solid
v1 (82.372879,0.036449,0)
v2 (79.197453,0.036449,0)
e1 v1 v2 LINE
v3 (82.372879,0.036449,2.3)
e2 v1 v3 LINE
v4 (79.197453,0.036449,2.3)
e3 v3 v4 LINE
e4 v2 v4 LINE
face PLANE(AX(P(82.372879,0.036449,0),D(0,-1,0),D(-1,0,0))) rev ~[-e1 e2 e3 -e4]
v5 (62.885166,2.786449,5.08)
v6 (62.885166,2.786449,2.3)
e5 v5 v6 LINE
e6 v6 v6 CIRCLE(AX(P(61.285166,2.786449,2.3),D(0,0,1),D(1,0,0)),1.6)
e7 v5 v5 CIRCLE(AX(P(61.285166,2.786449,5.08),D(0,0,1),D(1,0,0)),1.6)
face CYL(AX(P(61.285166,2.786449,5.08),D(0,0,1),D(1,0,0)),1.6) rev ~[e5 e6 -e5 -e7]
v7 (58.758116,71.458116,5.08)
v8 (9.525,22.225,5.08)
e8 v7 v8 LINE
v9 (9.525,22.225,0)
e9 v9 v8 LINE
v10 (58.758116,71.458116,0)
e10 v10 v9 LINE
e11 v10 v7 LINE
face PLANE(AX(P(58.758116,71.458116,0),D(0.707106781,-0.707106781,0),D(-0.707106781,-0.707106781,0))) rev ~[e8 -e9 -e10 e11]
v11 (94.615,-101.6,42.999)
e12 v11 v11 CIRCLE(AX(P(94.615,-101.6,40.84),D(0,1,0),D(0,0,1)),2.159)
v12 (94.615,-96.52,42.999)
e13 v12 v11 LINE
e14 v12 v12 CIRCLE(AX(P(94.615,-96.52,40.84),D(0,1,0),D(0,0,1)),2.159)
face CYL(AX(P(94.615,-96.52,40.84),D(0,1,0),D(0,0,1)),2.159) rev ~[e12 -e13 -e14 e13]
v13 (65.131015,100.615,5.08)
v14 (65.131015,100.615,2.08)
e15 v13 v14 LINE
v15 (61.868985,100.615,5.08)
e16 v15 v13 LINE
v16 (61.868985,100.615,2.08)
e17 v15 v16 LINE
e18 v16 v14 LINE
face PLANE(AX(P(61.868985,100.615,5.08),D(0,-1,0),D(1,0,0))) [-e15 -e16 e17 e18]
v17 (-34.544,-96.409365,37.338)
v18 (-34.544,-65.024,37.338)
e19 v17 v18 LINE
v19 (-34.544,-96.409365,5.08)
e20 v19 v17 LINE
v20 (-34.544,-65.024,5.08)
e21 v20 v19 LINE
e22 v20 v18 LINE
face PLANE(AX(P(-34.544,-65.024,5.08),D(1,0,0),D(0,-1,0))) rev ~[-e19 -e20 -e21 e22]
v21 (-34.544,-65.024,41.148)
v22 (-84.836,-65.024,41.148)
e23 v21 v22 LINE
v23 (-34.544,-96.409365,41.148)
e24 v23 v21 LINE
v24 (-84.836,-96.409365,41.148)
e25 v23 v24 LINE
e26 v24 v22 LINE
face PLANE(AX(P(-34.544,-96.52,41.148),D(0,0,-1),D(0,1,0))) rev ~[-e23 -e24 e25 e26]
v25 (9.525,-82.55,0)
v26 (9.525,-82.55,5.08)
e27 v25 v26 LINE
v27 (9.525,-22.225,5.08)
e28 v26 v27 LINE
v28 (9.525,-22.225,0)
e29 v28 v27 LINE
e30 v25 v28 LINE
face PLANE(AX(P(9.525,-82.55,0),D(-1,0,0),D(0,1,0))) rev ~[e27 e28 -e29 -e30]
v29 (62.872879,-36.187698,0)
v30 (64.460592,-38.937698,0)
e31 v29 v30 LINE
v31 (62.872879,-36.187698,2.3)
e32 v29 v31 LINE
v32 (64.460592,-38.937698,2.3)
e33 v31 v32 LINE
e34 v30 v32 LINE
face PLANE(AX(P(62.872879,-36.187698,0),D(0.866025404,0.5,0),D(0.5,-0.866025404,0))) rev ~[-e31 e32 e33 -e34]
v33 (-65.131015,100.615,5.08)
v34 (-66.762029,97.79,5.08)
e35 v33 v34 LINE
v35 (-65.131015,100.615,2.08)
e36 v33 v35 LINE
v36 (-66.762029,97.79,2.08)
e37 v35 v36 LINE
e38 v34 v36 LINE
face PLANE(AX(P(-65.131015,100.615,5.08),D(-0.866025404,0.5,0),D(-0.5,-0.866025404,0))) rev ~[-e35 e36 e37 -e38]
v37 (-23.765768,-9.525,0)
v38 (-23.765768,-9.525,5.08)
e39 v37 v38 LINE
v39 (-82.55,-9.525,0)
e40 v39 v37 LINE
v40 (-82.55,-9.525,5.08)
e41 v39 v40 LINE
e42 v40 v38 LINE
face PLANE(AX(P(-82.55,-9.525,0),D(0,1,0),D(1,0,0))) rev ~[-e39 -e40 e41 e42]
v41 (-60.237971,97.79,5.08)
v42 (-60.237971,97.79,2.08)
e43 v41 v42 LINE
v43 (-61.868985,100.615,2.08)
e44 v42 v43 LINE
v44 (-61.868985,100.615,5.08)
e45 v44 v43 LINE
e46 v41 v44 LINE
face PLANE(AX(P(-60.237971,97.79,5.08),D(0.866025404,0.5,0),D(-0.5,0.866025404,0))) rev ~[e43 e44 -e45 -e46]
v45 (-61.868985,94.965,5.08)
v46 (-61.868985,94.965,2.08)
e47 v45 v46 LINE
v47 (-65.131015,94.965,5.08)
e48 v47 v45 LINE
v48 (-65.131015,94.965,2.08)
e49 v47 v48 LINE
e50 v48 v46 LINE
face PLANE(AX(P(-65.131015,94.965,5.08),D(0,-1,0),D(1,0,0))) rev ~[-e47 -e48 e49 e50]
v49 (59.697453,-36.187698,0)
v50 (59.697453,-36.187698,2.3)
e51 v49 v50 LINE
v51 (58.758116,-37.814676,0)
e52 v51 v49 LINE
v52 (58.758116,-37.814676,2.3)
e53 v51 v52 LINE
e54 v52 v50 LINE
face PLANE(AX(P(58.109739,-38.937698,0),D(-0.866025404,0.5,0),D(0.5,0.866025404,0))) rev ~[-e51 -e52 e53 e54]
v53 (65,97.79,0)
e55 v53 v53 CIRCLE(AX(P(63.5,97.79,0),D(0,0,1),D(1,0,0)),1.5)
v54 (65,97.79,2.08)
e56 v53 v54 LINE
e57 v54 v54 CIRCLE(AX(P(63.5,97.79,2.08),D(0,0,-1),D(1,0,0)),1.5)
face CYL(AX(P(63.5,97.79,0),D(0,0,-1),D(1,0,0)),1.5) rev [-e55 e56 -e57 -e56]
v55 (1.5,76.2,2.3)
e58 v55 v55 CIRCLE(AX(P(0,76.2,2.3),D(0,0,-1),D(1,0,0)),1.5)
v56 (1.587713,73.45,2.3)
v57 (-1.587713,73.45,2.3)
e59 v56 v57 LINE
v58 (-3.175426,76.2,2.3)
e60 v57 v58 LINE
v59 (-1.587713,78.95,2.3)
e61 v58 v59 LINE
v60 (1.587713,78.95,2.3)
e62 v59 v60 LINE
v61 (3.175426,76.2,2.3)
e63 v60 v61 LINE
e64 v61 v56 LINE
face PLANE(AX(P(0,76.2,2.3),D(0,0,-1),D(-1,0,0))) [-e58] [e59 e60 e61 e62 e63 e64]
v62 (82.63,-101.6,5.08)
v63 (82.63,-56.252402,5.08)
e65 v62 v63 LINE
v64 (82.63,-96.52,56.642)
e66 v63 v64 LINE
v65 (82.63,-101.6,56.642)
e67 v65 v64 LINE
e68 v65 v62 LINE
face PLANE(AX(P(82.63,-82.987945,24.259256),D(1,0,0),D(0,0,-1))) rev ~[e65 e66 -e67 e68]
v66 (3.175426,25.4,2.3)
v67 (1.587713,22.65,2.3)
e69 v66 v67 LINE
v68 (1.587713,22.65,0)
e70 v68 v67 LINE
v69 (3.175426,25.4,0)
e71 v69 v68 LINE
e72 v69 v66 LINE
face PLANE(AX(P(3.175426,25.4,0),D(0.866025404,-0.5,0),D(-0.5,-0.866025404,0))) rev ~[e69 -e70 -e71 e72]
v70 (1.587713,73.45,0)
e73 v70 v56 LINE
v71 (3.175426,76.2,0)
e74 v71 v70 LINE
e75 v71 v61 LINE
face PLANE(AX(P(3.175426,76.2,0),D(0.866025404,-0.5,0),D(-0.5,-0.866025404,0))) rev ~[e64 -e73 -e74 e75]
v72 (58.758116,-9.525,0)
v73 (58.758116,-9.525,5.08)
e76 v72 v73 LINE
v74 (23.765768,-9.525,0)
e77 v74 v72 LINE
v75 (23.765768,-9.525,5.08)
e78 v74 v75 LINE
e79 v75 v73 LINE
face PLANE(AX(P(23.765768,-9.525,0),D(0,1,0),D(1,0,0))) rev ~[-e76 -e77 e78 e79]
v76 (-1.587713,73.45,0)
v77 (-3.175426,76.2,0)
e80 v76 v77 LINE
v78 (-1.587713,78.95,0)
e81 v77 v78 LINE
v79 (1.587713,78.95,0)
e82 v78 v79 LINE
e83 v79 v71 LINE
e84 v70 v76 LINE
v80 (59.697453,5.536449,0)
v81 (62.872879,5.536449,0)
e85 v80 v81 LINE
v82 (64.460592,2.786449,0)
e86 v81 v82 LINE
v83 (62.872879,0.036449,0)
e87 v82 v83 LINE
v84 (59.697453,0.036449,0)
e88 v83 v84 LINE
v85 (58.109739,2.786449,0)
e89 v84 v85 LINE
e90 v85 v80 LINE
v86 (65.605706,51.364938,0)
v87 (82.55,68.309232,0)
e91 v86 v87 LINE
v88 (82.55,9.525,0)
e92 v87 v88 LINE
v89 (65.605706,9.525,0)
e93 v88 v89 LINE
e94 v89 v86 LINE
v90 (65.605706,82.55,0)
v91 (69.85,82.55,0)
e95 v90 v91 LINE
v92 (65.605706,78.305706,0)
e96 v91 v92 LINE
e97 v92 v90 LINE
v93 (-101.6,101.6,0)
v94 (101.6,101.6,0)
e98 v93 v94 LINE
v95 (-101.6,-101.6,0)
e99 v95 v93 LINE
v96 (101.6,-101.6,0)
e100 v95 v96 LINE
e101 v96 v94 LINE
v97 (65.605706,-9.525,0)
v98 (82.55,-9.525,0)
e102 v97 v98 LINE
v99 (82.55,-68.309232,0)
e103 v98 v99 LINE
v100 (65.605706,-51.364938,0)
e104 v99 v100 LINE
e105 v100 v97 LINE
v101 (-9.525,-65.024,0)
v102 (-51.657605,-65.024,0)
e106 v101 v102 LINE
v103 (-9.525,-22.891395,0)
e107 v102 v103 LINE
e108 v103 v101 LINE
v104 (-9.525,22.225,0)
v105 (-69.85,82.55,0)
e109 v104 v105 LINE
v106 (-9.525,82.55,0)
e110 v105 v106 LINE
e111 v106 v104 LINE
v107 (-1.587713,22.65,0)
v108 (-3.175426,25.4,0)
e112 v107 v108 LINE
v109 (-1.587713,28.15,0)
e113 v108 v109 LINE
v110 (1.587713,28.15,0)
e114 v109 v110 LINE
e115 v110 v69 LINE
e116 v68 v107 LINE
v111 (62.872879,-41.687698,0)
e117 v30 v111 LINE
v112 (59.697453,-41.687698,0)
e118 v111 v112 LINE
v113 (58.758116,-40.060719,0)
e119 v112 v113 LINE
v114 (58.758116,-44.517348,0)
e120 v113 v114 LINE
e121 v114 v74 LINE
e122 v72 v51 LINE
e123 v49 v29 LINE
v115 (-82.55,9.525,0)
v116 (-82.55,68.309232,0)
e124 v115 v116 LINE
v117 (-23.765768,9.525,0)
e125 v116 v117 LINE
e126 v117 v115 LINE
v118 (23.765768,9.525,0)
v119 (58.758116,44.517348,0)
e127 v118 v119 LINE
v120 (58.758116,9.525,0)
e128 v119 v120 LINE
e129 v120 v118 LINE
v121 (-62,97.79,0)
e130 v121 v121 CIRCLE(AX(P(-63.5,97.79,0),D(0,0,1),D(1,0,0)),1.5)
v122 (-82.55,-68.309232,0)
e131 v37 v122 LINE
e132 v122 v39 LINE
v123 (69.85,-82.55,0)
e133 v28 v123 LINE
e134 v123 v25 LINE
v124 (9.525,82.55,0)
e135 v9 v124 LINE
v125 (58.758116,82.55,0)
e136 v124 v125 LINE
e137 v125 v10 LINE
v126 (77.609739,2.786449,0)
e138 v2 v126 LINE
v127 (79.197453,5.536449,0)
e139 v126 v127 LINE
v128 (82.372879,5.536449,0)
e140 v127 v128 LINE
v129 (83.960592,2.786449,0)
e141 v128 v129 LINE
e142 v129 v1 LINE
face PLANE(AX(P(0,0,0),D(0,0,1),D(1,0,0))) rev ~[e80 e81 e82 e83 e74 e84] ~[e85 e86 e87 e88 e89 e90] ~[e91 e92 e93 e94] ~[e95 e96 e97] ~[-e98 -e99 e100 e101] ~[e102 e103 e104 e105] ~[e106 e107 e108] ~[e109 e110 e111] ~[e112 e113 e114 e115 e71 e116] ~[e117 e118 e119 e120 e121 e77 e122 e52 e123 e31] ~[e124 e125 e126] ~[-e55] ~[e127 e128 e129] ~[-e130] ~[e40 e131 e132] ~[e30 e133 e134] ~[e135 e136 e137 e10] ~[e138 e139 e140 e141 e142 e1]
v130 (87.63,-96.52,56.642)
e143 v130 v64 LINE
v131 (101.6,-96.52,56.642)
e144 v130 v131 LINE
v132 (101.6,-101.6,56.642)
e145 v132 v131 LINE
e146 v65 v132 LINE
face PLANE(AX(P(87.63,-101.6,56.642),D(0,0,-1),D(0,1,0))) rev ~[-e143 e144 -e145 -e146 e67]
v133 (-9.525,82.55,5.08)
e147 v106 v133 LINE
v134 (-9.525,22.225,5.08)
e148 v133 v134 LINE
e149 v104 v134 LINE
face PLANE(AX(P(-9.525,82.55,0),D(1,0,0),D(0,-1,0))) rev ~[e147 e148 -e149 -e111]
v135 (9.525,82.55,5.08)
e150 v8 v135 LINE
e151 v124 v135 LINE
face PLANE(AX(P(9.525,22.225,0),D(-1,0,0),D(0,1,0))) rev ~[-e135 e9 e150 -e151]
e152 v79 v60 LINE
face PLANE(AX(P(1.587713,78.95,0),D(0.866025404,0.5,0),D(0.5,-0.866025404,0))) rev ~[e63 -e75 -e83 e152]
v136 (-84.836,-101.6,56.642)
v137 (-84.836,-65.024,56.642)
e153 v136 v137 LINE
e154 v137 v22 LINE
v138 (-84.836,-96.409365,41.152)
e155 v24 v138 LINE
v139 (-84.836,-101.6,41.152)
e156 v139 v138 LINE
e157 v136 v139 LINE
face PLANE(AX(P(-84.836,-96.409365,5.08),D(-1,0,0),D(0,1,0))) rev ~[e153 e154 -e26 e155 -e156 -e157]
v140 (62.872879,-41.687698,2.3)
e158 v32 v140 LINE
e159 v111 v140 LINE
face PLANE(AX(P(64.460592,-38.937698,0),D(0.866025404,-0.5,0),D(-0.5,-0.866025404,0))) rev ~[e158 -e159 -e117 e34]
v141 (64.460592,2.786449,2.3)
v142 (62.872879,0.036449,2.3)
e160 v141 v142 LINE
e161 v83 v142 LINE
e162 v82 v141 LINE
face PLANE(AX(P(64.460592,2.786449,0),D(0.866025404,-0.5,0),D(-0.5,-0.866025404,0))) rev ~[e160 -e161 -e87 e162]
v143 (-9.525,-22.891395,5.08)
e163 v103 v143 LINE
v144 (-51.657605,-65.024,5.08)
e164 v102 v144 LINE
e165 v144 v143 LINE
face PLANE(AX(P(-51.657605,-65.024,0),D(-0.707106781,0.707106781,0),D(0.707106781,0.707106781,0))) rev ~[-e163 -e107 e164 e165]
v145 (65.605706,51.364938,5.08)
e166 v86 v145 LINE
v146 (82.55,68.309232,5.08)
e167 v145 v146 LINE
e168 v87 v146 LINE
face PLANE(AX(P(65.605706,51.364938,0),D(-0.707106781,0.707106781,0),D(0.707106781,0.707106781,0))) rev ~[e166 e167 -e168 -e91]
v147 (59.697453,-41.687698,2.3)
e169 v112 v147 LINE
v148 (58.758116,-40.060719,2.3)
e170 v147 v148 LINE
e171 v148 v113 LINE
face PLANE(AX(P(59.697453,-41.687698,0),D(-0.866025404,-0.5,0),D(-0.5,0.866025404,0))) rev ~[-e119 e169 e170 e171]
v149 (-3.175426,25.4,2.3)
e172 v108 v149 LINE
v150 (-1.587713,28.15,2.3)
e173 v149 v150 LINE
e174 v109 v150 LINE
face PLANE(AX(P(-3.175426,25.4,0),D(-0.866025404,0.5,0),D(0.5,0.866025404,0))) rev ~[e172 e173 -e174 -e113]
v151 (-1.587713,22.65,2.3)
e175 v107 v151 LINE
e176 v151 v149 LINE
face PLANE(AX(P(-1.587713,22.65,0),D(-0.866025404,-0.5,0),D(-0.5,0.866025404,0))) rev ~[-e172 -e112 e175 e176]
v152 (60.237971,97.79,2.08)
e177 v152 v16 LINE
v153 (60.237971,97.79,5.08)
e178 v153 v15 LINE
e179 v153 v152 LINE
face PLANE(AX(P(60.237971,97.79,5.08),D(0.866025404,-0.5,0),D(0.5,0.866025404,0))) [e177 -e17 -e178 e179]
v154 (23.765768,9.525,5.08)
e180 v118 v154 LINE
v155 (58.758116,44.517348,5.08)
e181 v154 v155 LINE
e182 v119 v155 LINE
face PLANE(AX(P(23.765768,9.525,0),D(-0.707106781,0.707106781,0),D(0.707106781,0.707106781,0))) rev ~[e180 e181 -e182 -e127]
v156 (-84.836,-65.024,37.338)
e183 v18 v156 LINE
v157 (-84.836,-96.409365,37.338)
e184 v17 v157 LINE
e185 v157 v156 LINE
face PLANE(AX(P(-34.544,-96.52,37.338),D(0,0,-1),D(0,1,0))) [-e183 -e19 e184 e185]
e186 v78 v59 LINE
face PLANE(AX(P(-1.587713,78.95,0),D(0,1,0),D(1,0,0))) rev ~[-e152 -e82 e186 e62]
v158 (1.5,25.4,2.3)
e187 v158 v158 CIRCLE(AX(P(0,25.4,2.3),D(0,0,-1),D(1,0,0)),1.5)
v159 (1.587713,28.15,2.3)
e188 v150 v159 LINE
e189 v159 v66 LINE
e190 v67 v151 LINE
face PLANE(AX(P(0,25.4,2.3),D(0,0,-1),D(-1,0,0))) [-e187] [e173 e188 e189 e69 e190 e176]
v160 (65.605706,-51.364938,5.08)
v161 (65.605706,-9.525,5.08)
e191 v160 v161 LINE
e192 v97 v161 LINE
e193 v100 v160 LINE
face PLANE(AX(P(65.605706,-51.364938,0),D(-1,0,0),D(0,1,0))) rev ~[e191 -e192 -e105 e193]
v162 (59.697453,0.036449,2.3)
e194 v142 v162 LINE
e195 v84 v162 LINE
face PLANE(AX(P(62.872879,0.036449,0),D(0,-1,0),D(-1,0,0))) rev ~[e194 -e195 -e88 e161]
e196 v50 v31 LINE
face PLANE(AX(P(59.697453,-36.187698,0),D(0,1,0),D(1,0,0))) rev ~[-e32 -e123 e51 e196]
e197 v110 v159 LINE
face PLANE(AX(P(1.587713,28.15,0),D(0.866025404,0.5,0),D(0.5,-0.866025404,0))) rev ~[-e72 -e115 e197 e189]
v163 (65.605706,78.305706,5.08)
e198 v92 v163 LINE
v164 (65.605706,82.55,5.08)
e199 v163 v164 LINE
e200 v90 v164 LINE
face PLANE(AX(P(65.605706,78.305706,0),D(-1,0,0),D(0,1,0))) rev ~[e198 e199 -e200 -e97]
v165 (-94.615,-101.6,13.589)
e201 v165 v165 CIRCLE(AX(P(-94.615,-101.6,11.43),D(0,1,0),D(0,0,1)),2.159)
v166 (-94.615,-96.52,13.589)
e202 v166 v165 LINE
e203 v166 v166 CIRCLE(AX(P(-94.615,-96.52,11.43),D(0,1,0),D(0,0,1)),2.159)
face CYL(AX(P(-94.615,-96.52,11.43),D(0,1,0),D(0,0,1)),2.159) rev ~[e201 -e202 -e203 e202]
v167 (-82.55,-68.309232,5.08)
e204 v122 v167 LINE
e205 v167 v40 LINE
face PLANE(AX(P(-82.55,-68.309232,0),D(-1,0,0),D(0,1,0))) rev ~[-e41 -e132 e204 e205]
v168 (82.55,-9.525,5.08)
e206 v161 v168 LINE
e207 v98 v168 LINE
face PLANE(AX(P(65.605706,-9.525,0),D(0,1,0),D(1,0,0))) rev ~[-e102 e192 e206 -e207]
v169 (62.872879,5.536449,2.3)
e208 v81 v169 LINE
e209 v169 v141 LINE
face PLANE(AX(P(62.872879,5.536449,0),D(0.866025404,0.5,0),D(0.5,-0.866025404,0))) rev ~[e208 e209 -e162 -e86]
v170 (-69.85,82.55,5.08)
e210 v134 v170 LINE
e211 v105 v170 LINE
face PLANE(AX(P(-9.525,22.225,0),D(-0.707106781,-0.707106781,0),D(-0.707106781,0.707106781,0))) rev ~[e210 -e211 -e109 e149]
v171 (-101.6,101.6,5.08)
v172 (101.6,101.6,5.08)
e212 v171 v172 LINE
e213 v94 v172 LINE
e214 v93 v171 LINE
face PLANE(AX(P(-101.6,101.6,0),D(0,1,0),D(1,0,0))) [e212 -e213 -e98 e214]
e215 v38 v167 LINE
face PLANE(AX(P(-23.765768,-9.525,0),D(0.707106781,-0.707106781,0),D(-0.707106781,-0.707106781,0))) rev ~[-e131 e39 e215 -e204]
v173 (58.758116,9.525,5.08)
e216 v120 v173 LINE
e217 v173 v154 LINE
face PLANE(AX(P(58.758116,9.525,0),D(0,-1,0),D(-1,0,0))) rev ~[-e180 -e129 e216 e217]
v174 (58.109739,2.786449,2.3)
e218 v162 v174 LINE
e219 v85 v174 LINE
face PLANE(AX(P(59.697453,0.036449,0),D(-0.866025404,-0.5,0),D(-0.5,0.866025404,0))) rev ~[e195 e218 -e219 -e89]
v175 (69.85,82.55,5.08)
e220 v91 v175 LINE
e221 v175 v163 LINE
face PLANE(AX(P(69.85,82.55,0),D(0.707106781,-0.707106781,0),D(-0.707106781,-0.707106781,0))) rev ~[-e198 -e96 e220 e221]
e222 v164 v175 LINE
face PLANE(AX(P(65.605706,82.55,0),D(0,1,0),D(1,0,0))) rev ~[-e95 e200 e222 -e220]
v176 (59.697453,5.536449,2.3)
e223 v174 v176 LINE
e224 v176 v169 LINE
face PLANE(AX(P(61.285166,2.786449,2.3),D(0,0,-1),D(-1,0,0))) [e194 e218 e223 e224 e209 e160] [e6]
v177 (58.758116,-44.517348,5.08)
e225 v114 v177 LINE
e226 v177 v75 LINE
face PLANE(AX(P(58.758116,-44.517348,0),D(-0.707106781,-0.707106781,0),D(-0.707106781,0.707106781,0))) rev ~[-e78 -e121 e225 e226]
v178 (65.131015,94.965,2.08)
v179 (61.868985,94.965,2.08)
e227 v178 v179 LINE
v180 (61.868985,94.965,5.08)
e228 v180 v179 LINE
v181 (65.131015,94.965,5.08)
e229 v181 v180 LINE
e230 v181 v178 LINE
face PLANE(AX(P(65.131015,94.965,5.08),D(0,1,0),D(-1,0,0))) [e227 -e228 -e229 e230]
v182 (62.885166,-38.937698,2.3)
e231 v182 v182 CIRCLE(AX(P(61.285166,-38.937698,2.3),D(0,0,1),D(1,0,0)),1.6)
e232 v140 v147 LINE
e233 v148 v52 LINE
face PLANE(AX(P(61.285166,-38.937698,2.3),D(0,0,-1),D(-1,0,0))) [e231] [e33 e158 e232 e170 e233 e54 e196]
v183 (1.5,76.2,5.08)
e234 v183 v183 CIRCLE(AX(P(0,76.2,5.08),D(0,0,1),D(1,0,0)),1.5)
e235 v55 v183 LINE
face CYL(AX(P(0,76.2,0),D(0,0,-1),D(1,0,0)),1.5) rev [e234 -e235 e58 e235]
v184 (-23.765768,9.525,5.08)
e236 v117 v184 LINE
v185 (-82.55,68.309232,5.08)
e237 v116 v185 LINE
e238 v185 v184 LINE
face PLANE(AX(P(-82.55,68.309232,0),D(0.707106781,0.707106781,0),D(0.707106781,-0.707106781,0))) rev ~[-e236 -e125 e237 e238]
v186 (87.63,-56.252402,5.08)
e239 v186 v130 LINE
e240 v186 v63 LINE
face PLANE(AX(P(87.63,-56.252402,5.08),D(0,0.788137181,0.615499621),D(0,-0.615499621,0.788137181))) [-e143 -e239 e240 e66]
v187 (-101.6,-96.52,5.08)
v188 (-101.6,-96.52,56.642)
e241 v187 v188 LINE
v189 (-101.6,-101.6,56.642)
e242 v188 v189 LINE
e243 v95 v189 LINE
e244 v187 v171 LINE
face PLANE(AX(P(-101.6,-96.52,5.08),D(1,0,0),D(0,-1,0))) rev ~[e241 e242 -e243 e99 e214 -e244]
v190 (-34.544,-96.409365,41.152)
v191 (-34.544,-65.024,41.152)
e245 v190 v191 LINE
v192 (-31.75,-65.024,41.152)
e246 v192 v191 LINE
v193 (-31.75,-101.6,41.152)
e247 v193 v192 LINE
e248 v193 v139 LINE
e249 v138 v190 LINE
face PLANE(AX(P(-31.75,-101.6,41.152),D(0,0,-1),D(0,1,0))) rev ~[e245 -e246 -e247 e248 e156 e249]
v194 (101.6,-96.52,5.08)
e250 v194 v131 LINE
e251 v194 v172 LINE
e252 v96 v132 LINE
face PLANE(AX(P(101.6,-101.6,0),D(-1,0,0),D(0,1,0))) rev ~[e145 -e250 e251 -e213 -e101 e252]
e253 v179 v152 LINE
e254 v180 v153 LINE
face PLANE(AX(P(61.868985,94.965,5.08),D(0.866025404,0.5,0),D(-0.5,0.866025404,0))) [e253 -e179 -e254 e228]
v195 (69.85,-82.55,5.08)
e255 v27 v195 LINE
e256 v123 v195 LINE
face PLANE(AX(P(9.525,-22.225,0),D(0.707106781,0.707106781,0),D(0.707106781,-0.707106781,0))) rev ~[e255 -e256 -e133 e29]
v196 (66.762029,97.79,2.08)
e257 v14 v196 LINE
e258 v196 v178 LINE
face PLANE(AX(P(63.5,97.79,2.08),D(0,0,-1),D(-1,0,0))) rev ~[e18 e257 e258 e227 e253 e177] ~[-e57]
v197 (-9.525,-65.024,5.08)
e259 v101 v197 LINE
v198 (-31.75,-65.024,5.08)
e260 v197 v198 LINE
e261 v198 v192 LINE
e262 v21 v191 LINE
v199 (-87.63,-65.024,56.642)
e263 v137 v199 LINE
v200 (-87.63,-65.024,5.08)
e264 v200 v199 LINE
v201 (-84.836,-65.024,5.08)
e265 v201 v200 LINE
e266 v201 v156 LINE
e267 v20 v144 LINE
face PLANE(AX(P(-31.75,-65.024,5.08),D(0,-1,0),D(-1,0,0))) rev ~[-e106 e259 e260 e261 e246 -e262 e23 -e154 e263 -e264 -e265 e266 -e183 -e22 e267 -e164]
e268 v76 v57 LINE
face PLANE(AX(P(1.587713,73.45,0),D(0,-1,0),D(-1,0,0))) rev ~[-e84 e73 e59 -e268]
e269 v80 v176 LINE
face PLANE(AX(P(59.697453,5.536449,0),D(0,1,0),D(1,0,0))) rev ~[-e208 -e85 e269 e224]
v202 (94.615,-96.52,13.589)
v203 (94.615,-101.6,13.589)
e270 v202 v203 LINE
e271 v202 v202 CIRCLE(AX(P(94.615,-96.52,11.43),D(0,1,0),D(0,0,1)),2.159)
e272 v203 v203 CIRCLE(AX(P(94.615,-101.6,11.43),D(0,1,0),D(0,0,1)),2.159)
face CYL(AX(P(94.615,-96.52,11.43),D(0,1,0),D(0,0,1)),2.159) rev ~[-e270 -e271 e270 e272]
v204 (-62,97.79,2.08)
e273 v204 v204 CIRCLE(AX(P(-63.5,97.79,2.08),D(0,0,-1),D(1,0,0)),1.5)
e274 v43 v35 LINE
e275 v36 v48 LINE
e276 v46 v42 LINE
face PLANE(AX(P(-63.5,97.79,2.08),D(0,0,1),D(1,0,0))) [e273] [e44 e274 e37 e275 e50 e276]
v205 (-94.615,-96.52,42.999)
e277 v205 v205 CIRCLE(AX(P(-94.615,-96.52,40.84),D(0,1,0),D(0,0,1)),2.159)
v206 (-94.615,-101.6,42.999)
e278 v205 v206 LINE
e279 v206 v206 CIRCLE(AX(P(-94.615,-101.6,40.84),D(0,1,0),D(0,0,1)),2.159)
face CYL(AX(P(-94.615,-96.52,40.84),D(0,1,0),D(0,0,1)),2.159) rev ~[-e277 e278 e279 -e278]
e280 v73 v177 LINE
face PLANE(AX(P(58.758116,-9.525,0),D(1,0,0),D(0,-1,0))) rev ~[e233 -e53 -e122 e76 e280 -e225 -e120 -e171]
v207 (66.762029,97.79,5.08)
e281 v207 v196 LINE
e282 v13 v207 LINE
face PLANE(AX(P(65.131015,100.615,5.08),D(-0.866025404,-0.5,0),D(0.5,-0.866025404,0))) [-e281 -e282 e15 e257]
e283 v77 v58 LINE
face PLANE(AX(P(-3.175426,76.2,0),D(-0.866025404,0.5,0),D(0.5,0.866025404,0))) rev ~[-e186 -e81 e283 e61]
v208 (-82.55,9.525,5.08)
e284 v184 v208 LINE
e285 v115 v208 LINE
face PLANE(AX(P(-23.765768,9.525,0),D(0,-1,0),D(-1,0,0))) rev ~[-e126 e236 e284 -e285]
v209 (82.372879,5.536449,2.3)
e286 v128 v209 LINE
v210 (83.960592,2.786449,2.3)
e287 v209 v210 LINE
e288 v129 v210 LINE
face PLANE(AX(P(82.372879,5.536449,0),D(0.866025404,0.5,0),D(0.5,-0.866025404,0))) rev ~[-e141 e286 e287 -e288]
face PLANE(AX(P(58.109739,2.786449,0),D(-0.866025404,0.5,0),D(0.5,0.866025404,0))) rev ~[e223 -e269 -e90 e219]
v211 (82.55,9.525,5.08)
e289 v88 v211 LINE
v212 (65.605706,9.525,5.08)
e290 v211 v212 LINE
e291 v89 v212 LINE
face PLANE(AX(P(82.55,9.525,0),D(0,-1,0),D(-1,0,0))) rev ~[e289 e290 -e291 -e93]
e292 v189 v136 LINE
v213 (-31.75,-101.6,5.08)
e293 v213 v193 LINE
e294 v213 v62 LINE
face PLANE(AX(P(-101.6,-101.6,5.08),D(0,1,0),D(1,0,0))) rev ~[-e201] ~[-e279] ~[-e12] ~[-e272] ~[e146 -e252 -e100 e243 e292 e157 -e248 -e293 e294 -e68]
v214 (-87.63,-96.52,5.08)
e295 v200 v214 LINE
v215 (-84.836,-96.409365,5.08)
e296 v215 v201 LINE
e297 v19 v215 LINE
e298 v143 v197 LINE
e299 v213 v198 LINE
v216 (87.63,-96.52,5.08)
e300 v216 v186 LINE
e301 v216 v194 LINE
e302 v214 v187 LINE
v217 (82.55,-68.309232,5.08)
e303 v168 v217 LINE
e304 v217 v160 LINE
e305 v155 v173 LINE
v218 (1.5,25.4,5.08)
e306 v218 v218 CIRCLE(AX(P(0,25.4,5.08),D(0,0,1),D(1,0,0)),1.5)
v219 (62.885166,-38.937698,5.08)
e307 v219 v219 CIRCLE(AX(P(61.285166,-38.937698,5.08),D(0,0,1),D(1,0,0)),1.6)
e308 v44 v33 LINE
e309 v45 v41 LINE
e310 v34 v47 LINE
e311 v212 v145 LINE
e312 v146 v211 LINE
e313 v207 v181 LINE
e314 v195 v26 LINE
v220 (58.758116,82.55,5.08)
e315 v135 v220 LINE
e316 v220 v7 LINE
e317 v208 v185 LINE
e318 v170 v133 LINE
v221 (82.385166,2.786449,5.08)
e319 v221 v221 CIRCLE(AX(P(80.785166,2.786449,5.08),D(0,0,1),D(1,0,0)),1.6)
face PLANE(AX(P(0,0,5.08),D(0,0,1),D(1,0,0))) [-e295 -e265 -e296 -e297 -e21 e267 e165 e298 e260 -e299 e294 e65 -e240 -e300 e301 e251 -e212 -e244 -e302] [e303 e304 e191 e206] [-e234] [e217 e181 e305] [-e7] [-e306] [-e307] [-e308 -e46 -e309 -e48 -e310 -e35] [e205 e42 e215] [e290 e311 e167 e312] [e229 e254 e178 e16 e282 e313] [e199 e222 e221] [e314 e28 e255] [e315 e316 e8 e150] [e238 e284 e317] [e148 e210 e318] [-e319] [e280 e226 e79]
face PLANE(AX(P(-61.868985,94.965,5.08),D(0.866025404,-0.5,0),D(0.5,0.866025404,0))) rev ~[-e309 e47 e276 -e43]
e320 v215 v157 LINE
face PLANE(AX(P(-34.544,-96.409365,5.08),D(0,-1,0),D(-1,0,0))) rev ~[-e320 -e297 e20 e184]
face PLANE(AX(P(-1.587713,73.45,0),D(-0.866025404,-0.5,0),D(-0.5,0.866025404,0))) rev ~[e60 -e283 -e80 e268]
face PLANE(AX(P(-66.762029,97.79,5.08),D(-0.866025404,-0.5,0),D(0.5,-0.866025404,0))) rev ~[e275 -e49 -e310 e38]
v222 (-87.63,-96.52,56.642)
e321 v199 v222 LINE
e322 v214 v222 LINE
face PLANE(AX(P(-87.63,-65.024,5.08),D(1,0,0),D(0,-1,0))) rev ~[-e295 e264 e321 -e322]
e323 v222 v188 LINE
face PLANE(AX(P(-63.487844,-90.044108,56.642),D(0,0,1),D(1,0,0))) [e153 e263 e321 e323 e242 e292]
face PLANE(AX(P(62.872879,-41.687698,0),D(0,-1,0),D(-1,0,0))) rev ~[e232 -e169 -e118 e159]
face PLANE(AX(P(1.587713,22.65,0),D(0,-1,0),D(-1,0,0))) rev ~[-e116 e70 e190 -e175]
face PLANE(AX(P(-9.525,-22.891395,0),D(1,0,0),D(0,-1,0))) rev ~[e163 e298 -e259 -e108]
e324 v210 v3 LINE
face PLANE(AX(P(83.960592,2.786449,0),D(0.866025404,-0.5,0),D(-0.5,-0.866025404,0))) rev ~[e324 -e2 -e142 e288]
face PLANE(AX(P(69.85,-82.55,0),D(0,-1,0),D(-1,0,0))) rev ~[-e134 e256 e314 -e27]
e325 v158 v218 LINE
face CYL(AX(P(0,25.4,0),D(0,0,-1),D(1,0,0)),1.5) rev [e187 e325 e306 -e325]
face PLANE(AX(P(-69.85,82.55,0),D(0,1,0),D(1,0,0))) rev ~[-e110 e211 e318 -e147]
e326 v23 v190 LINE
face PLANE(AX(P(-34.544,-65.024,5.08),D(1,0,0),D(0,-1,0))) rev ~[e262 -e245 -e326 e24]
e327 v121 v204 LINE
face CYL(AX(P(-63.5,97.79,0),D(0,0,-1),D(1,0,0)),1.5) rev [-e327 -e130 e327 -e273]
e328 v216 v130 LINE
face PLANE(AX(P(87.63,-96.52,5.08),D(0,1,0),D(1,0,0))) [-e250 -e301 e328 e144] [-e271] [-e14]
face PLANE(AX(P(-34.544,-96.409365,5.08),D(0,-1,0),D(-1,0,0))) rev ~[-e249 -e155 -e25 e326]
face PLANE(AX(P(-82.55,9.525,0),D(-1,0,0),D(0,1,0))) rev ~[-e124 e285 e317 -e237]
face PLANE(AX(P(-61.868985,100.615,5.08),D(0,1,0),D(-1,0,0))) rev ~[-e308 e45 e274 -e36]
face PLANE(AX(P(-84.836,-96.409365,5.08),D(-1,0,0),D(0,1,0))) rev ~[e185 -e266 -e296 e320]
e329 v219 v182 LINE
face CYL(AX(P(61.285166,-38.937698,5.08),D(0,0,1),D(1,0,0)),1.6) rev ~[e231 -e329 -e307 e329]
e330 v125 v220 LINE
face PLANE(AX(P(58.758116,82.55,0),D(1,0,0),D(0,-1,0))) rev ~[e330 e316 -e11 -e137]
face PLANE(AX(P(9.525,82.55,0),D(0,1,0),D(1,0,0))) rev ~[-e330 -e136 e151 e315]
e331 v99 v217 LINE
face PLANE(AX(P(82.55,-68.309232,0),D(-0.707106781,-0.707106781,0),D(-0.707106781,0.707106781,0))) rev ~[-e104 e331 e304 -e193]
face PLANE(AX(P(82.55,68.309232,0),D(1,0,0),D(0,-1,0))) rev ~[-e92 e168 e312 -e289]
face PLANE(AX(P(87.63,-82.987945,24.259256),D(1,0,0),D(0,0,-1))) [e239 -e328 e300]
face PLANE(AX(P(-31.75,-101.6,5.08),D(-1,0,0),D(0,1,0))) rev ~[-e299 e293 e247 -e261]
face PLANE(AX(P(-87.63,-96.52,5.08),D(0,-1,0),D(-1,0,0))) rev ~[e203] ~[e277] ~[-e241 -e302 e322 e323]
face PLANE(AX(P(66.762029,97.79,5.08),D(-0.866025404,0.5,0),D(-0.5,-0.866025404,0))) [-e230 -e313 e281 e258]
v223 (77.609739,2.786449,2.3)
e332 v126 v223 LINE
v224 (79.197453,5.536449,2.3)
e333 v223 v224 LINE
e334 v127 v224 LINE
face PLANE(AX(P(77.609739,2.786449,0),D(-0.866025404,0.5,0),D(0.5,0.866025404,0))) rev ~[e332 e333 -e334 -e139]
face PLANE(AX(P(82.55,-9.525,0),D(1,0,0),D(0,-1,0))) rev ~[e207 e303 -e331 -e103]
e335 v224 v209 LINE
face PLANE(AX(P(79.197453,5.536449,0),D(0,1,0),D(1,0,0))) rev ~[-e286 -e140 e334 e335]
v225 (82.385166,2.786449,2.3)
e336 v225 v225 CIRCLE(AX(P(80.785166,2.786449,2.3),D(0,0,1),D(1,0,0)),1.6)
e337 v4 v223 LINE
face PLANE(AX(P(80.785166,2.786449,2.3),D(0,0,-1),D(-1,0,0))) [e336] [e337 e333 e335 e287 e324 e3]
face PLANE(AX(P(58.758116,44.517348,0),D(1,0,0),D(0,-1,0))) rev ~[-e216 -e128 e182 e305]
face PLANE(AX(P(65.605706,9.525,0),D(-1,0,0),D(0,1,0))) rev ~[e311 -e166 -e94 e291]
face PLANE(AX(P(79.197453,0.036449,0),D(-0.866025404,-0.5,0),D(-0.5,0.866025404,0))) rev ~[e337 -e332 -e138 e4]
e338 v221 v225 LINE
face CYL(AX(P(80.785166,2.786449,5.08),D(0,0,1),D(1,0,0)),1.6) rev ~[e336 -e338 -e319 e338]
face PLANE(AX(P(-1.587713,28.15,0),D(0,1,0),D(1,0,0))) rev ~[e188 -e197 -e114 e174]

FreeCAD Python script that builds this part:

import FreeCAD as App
import Part
import Sketcher
from FreeCAD import Vector
Q = App.Units.Quantity


def add_polygon(sketch, points):
    """Adds a closed chain of lines whose ends are joined by coincident constraints."""
    first, n = sketch.GeometryCount, len(points)
    for a, b in zip(points, points[1:] + points[:1]):
        sketch.addGeometry(Part.LineSegment(App.Vector(*a, 0), App.Vector(*b, 0)), False)
    for i in range(n):
        sketch.addConstraint(Sketcher.Constraint("Coincident", first + i, 2, first + (i + 1) % n, 1))

doc = App.newDocument("Part")
body = doc.addObject("PartDesign::Body", "Body")

# Sketch on XY plane
sketch1 = body.newObject("Sketcher::SketchObject", "Sketch")
sketch1.AttachmentSupport = (doc.getObject("XY_Plane"), [""])
sketch1.MapMode = "FlatFace"
add_polygon(sketch1, [(-101.6, 101.6), (-101.6, -101.6), (101.6, -101.6), (101.6, 101.6)])  # lines 0-3
add_polygon(sketch1, [(-23.765768, -9.525), (-82.55, -68.309232), (-82.55, -9.525)])  # lines 4-6
add_polygon(sketch1, [(-9.525, -65.024), (-51.657605, -65.024), (-9.525, -22.891395)])  # lines 7-9
add_polygon(sketch1, [(69.85, -82.55), (9.525, -82.55), (9.525, -22.225)])  # lines 10-12
add_polygon(sketch1, [(82.55, -9.525), (82.55, -68.309232), (65.605706, -51.364938), (65.605706, -9.525)])  # lines 13-16
add_polygon(sketch1, [(58.758116, -9.525), (58.758116, -44.517348), (23.765768, -9.525)])  # lines 17-19
add_polygon(sketch1, [(-82.55, 68.309232), (-23.765768, 9.525), (-82.55, 9.525)])  # lines 20-22
add_polygon(sketch1, [(-9.525, 82.55), (-9.525, 22.225), (-69.85, 82.55)])  # lines 23-25
sketch1.addGeometry(Part.Circle(Vector(-63.5, 97.79, 0), Vector(0, 0, 1), 1.5), False)  # 26
sketch1.addGeometry(Part.Circle(Vector(0, 25.4, 0), Vector(0, 0, 1), 1.5), False)  # 27
add_polygon(sketch1, [(23.765768, 9.525), (58.758116, 44.517348), (58.758116, 9.525)])  # lines 28-30
add_polygon(sketch1, [(9.525, 22.225), (9.525, 82.55), (58.758116, 82.55), (58.758116, 71.458116)])  # lines 31-34
add_polygon(sketch1, [(82.55, 68.309232), (82.55, 9.525), (65.605706, 9.525), (65.605706, 51.364938)])  # lines 35-38
sketch1.addGeometry(Part.Circle(Vector(0, 76.2, 0), Vector(0, 0, 1), 1.5), False)  # 39
add_polygon(sketch1, [(69.85, 82.55), (65.605706, 78.305706), (65.605706, 82.55)])  # lines 40-42
sketch1.addGeometry(Part.Circle(Vector(63.5, 97.79, 0), Vector(0, 0, 1), 1.5), False)  # 43
sketch1.addConstraint([
    Sketcher.Constraint("Vertical", 0),
    Sketcher.Constraint("Horizontal", 1),
    Sketcher.Constraint("Vertical", 2),
    Sketcher.Constraint("Horizontal", 3),
    Sketcher.Constraint("Vertical", 5),
    Sketcher.Constraint("Horizontal", 6),
    Sketcher.Constraint("Horizontal", 7),
    Sketcher.Constraint("Vertical", 9),
    Sketcher.Constraint("Horizontal", 10),
    Sketcher.Constraint("Vertical", 11),
    Sketcher.Constraint("Vertical", 13),
    Sketcher.Constraint("Vertical", 15),
    Sketcher.Constraint("Horizontal", 16),
    Sketcher.Constraint("Vertical", 17),
    Sketcher.Constraint("Horizontal", 19),
    Sketcher.Constraint("Horizontal", 21),
    Sketcher.Constraint("Vertical", 22),
    Sketcher.Constraint("Vertical", 23),
    Sketcher.Constraint("Horizontal", 25),
    Sketcher.Constraint("Vertical", 29),
    Sketcher.Constraint("Horizontal", 30),
    Sketcher.Constraint("Vertical", 31),
    Sketcher.Constraint("Horizontal", 32),
    Sketcher.Constraint("Vertical", 33),
    Sketcher.Constraint("Vertical", 35),
    Sketcher.Constraint("Horizontal", 36),
    Sketcher.Constraint("Vertical", 37),
    Sketcher.Constraint("Vertical", 41),
    Sketcher.Constraint("Horizontal", 42),
    Sketcher.Constraint("Equal", 26, 27),
    Sketcher.Constraint("Equal", 27, 39),
    Sketcher.Constraint("Equal", 39, 43),
    Sketcher.Constraint("Symmetric", 0, 2, 2, 2, -1, 1),
    Sketcher.Constraint("Symmetric", 18, 2, 20, 2, -1, 1),
    Sketcher.Constraint("Symmetric", 16, 2, 21, 2, -1, 1),
    Sketcher.Constraint("Symmetric", 11, 2, 23, 2, -1, 1),
    Sketcher.Constraint("Symmetric", 12, 2, 24, 2, -1, 1),
    Sketcher.Constraint("Symmetric", 6, 2, 30, 2, -1, 1),
    Sketcher.Constraint("Symmetric", 5, 2, 35, 2, -1, 1),
    Sketcher.Constraint("Symmetric", 26, 3, 43, 3, -2),
    Sketcher.Constraint("Symmetric", 4, 2, 13, 2, -2),
    Sketcher.Constraint("Symmetric", 6, 2, 18, 2, -2),
    Sketcher.Constraint("Symmetric", 25, 2, 31, 2, -2),
    Sketcher.Constraint("Symmetric", 24, 2, 42, 2, -2),
    Sketcher.Constraint("Symmetric", 17, 2, 28, 2, -1),
    Sketcher.Constraint("Symmetric", 14, 2, 37, 2, -1),
    Sketcher.Constraint("PointOnObject", 27, 3, -2),
    Sketcher.Constraint("PointOnObject", 39, 3, -2),
    Sketcher.Constraint("Parallel", 4, 8),
    Sketcher.Constraint("Perpendicular", 8, 12),
    Sketcher.Constraint("Parallel", 12, 14),
    Sketcher.Constraint("Parallel", 14, 18),
    Sketcher.Constraint("Parallel", 18, 20),
    Sketcher.Constraint("Perpendicular", 24, 28),
    Sketcher.Constraint("Parallel", 28, 34),
    Sketcher.Constraint("Parallel", 34, 38),
    Sketcher.Constraint("Parallel", 38, 40),
    Sketcher.Constraint("Horizontal", 23, 2, 34, 2),
    Sketcher.Constraint("Vertical", 9, 2, 23, 2),
    Sketcher.Constraint("Vertical", 29, 2, 32, 2),
    Sketcher.Constraint("Vertical", 37, 2, 40, 2),
    Sketcher.Constraint("Equal", 3, 0),
    Sketcher.Constraint("DistanceX", 1, 1, 1, 2, Q("8 in")),
    Sketcher.Constraint("DistanceY", -1, 1, 27, 3, Q("1 in")),
    Sketcher.Constraint("DistanceY", -1, 1, 39, 3, Q("3 in")),
    Sketcher.Constraint("DistanceX", 26, 3, 43, 3, Q("5 in")),
    Sketcher.Constraint("DistanceY", 11, 2, 6, 2, Q("0.5 in")),
    Sketcher.Constraint("DistanceX", 12, 2, 13, 2, Q("0.5 in")),
    Sketcher.Constraint("DistanceY", 24, 2, 26, 3, Q("0.6 in")),
    Sketcher.Constraint("Diameter", 26, Q("3 mm")),
    Sketcher.Constraint("DistanceX", 10, 2, 10, 1, Q("2.375 in")),
    Sketcher.Constraint("DistanceY", -1, 1, 26, 3, Q("3.85 in")),
    Sketcher.Constraint("DistanceX", 4, 2, -1, 1, Q("3.25 in")),
    Sketcher.Constraint("DistanceY", 7, 2, -1, 1, Q("2.56 in")),
    Sketcher.Constraint("Distance", 8, Q("59.584502 mm")),
    Sketcher.Constraint("DistanceX", 6, 1, 6, 2, Q("58.784232 mm")),
    Sketcher.Constraint("Distance", 14, Q("23.96285 mm")),
    Sketcher.Constraint("Distance", 34, Q("69.62614 mm")),
])
pad1 = body.newObject("PartDesign::Pad", "Pad")
pad1.Profile = sketch1
pad1.Length = Q("0.2 in")

# Sketch on XY plane
sketch2 = body.newObject("Sketcher::SketchObject", "Sketch001")
sketch2.AttachmentSupport = (doc.getObject("XY_Plane"), [""])
sketch2.MapMode = "FlatFace"
sketch2.AttachmentOffset = App.Placement(Vector(0, 0, 0.2 * 25.4), App.Rotation())
add_polygon(sketch2, [(-101.6, -96.52), (-101.6, -101.6), (-31.75, -101.6), (-31.75, -65.024), (-34.544, -65.024), (-34.544, -96.409365), (-84.836, -96.409365), (-84.836, -65.024), (-87.63, -65.024), (-87.63, -96.52)])  # lines 0-9
add_polygon(sketch2, [(87.63, -96.52), (87.63, -101.6), (101.6, -101.6), (101.6, -96.52)])  # lines 10-13
sketch2.addConstraint([
    Sketcher.Constraint("Vertical", 0),
    Sketcher.Constraint("Horizontal", 1),
    Sketcher.Constraint("Vertical", 2),
    Sketcher.Constraint("Horizontal", 3),
    Sketcher.Constraint("Vertical", 4),
    Sketcher.Constraint("Horizontal", 5),
    Sketcher.Constraint("Vertical", 6),
    Sketcher.Constraint("Horizontal", 7),
    Sketcher.Constraint("Vertical", 8),
    Sketcher.Constraint("Horizontal", 9),
    Sketcher.Constraint("Vertical", 10),
    Sketcher.Constraint("Horizontal", 11),
    Sketcher.Constraint("Vertical", 12),
    Sketcher.Constraint("Horizontal", 13),
    Sketcher.Constraint("Symmetric", 0, 2, 11, 2, -2),
    Sketcher.Constraint("Symmetric", 8, 2, 13, 2, -2),
    Sketcher.Constraint("Horizontal", 3, 2, 6, 2),
    Sketcher.Constraint("Equal", 3, 7),
    Sketcher.Constraint("DistanceY", 0, 2, 0, 1, Q("0.2 in")),
    Sketcher.Constraint("DistanceX", 0, 2, -1, 1, Q("4 in")),
    Sketcher.Constraint("DistanceY", 0, 2, -1, 1, Q("4 in")),
    Sketcher.Constraint("DistanceX", 1, 1, 1, 2, Q("2.75 in")),
    Sketcher.Constraint("DistanceX", 3, 2, 3, 1, Q("0.11 in")),
    Sketcher.Constraint("DistanceX", 5, 2, 5, 1, Q("1.98 in")),
    Sketcher.Constraint("DistanceY", 2, 1, 2, 2, Q("1.44 in")),
    Sketcher.Constraint("DistanceY", 4, 2, 4, 1, Q("31.385365 mm")),
])
pad2 = body.newObject("PartDesign::Pad", "Pad001")
pad2.Profile = sketch2
pad2.Length = Q("2.03 in")

# Sketch on XZ plane
sketch3 = body.newObject("Sketcher::SketchObject", "Sketch002")
sketch3.AttachmentSupport = (doc.getObject("XZ_Plane"), [""])
sketch3.MapMode = "FlatFace"
sketch3.AttachmentOffset = App.Placement(Vector(0, 0, 3.8 * 25.4), App.Rotation())
sketch3.addGeometry(Part.Circle(Vector(-94.615, 11.43, 0), Vector(0, 0, 1), 2.159), False)
sketch3.addConstraint([
    Sketcher.Constraint("Diameter", 0, Q("0.17 in")),
    Sketcher.Constraint("DistanceY", -1, 1, 0, 3, Q("0.45 in")),
    Sketcher.Constraint("DistanceX", 0, 3, -1, 1, Q("3.725 in")),
])
pocket1 = body.newObject("PartDesign::Pocket", "Pocket")
pocket1.Profile = sketch3
pocket1.Type = "UpToFirst"
pocket1.Reversed = True

# Sketch on XZ plane
sketch4 = body.newObject("Sketcher::SketchObject", "Sketch003")
sketch4.AttachmentSupport = (doc.getObject("XZ_Plane"), [""])
sketch4.MapMode = "FlatFace"
sketch4.AttachmentOffset = App.Placement(Vector(0, 0, 3.8 * 25.4), App.Rotation())
sketch4.addGeometry(Part.Circle(Vector(94.615, 11.43, 0), Vector(0, 0, 1), 2.159), False)
sketch4.addConstraint([
    Sketcher.Constraint("Diameter", 0, Q("0.17 in")),
    Sketcher.Constraint("DistanceY", -1, 1, 0, 3, Q("0.45 in")),
    Sketcher.Constraint("DistanceX", -1, 1, 0, 3, Q("3.725 in")),
])
pocket2 = body.newObject("PartDesign::Pocket", "Pocket001")
pocket2.Profile = sketch4
pocket2.Type = "UpToFirst"
pocket2.Reversed = True

# Sketch on XZ plane
sketch5 = body.newObject("Sketcher::SketchObject", "Sketch004")
sketch5.AttachmentSupport = (doc.getObject("XZ_Plane"), [""])
sketch5.MapMode = "FlatFace"
sketch5.AttachmentOffset = App.Placement(Vector(0, 0, 3.8 * 25.4), App.Rotation())
sketch5.addGeometry(Part.Circle(Vector(94.615, 40.84, 0), Vector(0, 0, 1), 2.159), False)
sketch5.addConstraint([
    Sketcher.Constraint("Diameter", 0, Q("0.17 in")),
    Sketcher.Constraint("DistanceX", -1, 1, 0, 3, Q("3.725 in")),
    Sketcher.Constraint("DistanceY", -1, 1, 0, 3, Q("40.84 mm")),
])
pocket3 = body.newObject("PartDesign::Pocket", "Pocket002")
pocket3.Profile = sketch5
pocket3.Type = "UpToFirst"
pocket3.Reversed = True

# Sketch on XZ plane
sketch6 = body.newObject("Sketcher::SketchObject", "Sketch005")
sketch6.AttachmentSupport = (doc.getObject("XZ_Plane"), [""])
sketch6.MapMode = "FlatFace"
sketch6.AttachmentOffset = App.Placement(Vector(0, 0, 3.8 * 25.4), App.Rotation())
sketch6.addGeometry(Part.Circle(Vector(-94.615, 40.84, 0), Vector(0, 0, 1), 2.159), False)
sketch6.addConstraint([
    Sketcher.Constraint("Diameter", 0, Q("0.17 in")),
    Sketcher.Constraint("DistanceX", 0, 3, -1, 1, Q("3.725 in")),
    Sketcher.Constraint("DistanceY", -1, 1, 0, 3, Q("40.84 mm")),
])
pocket4 = body.newObject("PartDesign::Pocket", "Pocket003")
pocket4.Profile = sketch6
pocket4.Type = "UpToFirst"
pocket4.Reversed = True

# Sketch on XY plane
sketch7 = body.newObject("Sketcher::SketchObject", "Sketch006")
sketch7.AttachmentSupport = (doc.getObject("XY_Plane"), [""])
sketch7.MapMode = "FlatFace"
sketch7.AttachmentOffset = App.Placement(Vector(0, 0, 0.2 * 25.4), App.Rotation())
add_polygon(sketch7, [(-61.868985, 94.965), (-60.237971, 97.79), (-61.868985, 100.615), (-65.131015, 100.615), (-66.762029, 97.79), (-65.131015, 94.965)])  # lines 0-5
add_polygon(sketch7, [(61.868985, 94.965), (65.131015, 94.965), (66.762029, 97.79), (65.131015, 100.615), (61.868985, 100.615), (60.237971, 97.79)])  # lines 6-11
sketch7.addConstraint([
    Sketcher.Constraint("Horizontal", 2),
    Sketcher.Constraint("Horizontal", 5),
    Sketcher.Constraint("Horizontal", 6),
    Sketcher.Constraint("Horizontal", 9),
    Sketcher.Constraint("Symmetric", 4, 2, 6, 2, -2),
    Sketcher.Constraint("Symmetric", 3, 2, 7, 2, -2),
    Sketcher.Constraint("Symmetric", 2, 2, 8, 2, -2),
    Sketcher.Constraint("Symmetric", 0, 2, 10, 2, -2),
    Sketcher.Constraint("Parallel", 0, 3),
    Sketcher.Constraint("Parallel", 1, 4),
    Sketcher.Constraint("Parallel", 3, 7),
    Sketcher.Constraint("Parallel", 7, 10),
    Sketcher.Constraint("Parallel", 8, 11),
    Sketcher.Constraint("Horizontal", 0, 2, 3, 2),
    Sketcher.Constraint("Vertical", 2, 2, 4, 2),
    Sketcher.Constraint("Angle", 0, Q("60 deg")),
    Sketcher.Constraint("DistanceX", 5, 2, 6, 2, Q("5 in")),
    Sketcher.Constraint("DistanceY", -1, 1, 0, 2, Q("3.85 in")),
    Sketcher.Constraint("DistanceX", 2, 2, 2, 1, Q("3.262029 mm")),
    Sketcher.Constraint("DistanceY", -1, 1, 1, 2, Q("100.615 mm")),
])
pocket5 = body.newObject("PartDesign::Pocket", "Pocket004")
pocket5.Profile = sketch7
pocket5.Length = 3

# Sketch on YZ plane
sketch8 = body.newObject("Sketcher::SketchObject", "Sketch007")
sketch8.AttachmentSupport = (doc.getObject("YZ_Plane"), [""])
sketch8.MapMode = "FlatFace"
sketch8.AttachmentOffset = App.Placement(Vector(0, 0, -1.36 * 25.4), App.Rotation())
add_polygon(sketch8, [(-65.024, 37.338), (-96.52, 37.338), (-96.52, 41.148), (-65.024, 41.148)])  # lines 0-3
sketch8.addConstraint([
    Sketcher.Constraint("Horizontal", 0),
    Sketcher.Constraint("Vertical", 1),
    Sketcher.Constraint("Horizontal", 2),
    Sketcher.Constraint("Vertical", 3),
    Sketcher.Constraint("DistanceX", 0, 2, 0, 1, Q("1.24 in")),
    Sketcher.Constraint("DistanceY", 1, 1, 1, 2, Q("0.15 in")),
    Sketcher.Constraint("DistanceX", 0, 2, -1, 1, Q("3.8 in")),
    Sketcher.Constraint("DistanceY", -1, 1, 0, 2, Q("1.47 in")),
])
pad3 = body.newObject("PartDesign::Pad", "Pad002")
pad3.Profile = sketch8
pad3.Type = "UpToFirst"
pad3.Reversed = True

# Sketch on YZ plane
sketch9 = body.newObject("Sketcher::SketchObject", "Sketch008")
sketch9.AttachmentSupport = (doc.getObject("YZ_Plane"), [""])
sketch9.MapMode = "FlatFace"
sketch9.AttachmentOffset = App.Placement(Vector(0, 0, -1.25 * 25.4), App.Rotation())
add_polygon(sketch9, [(-65.024, 56.642), (-101.6, 56.642), (-101.6, 41.152), (-65.024, 41.152)])  # lines 0-3
sketch9.addConstraint([
    Sketcher.Constraint("Horizontal", 0),
    Sketcher.Constraint("Vertical", 1),
    Sketcher.Constraint("Horizontal", 2),
    Sketcher.Constraint("Vertical", 3),
    Sketcher.Constraint("DistanceX", 0, 2, -1, 1, Q("4 in")),
    Sketcher.Constraint("DistanceX", 0, 2, 0, 1, Q("1.44 in")),
    Sketcher.Constraint("DistanceY", -1, 1, 0, 2, Q("2.23 in")),
    Sketcher.Constraint("DistanceY", 1, 2, 1, 1, Q("15.49 mm")),
])
pocket6 = body.newObject("PartDesign::Pocket", "Pocket005")
pocket6.Profile = sketch9
pocket6.Length = Q("2.09 in")

# Sketch on XY plane
sketch10 = body.newObject("Sketcher::SketchObject", "Sketch009")
sketch10.AttachmentSupport = (doc.getObject("XY_Plane"), [""])
sketch10.MapMode = "FlatFace"
sketch10.AttachmentOffset = App.Placement(Vector(0, 0, 0.2 * 25.4), App.Rotation())
sketch10.addGeometry([
    Part.Circle(Vector(61.285166, 2.786449, 0), Vector(0, 0, 1), 1.6),
    Part.Circle(Vector(80.785166, 2.786449, 0), Vector(0, 0, 1), 1.6),
    Part.Circle(Vector(80.785166, -38.937698, 0), Vector(0, 0, 1), 1.6),
    Part.Circle(Vector(61.285166, -38.937698, 0), Vector(0, 0, 1), 1.6),
], False)
sketch10.addConstraint([
    Sketcher.Constraint("Equal", 0, 1),
    Sketcher.Constraint("Equal", 1, 2),
    Sketcher.Constraint("Equal", 2, 3),
    Sketcher.Constraint("Horizontal", 0, 3, 1, 3),
    Sketcher.Constraint("Horizontal", 2, 3, 3, 3),
    Sketcher.Constraint("Vertical", 1, 3, 2, 3),
    Sketcher.Constraint("Vertical", 0, 3, 3, 3),
    Sketcher.Constraint("Diameter", 0, Q("3.2 mm")),
    Sketcher.Constraint("DistanceX", 0, 3, 1, 3, Q("19.5 mm")),
    Sketcher.Constraint("DistanceY", -1, 1, 0, 3, Q("2.786449 mm")),
    Sketcher.Constraint("DistanceX", -1, 1, 0, 3, Q("61.285166 mm")),
    Sketcher.Constraint("DistanceY", 2, 3, -1, 1, Q("38.937698 mm")),
])
pocket7 = body.newObject("PartDesign::Pocket", "Pocket006")
pocket7.Profile = sketch10
pocket7.Length = 10

# Sketch on XY plane
sketch11 = body.newObject("Sketcher::SketchObject", "Sketch010")
sketch11.AttachmentSupport = (doc.getObject("XY_Plane"), [""])
sketch11.MapMode = "FlatFace"
add_polygon(sketch11, [(1.587713, 73.45), (-1.587713, 73.45), (-3.175426, 76.2), (-1.587713, 78.95), (1.587713, 78.95), (3.175426, 76.2)])  # lines 0-5
add_polygon(sketch11, [(3.175426, 25.4), (1.587713, 22.65), (-1.587713, 22.65), (-3.175426, 25.4), (-1.587713, 28.15), (1.587713, 28.15)])  # lines 6-11
add_polygon(sketch11, [(64.460592, 2.786449), (62.872879, 0.036449), (59.697453, 0.036449), (58.109739, 2.786449), (59.697453, 5.536449), (62.872879, 5.536449)])  # lines 12-17
add_polygon(sketch11, [(83.960592, 2.786449), (82.372879, 0.036449), (79.197453, 0.036449), (77.609739, 2.786449), (79.197453, 5.536449), (82.372879, 5.536449)])  # lines 18-23
add_polygon(sketch11, [(64.460592, -38.937698), (62.872879, -41.687698), (59.697453, -41.687698), (58.109739, -38.937698), (59.697453, -36.187698), (62.872879, -36.187698)])  # lines 24-29
sketch11.addConstraint([
    Sketcher.Constraint("Horizontal", 0),
    Sketcher.Constraint("Horizontal", 3),
    Sketcher.Constraint("Horizontal", 7),
    Sketcher.Constraint("Horizontal", 10),
    Sketcher.Constraint("Horizontal", 13),
    Sketcher.Constraint("Horizontal", 16),
    Sketcher.Constraint("Horizontal", 19),
    Sketcher.Constraint("Horizontal", 22),
    Sketcher.Constraint("Horizontal", 25),
    Sketcher.Constraint("Horizontal", 28),
    Sketcher.Constraint("Symmetric", 1, 2, 4, 2, -2),
    Sketcher.Constraint("Symmetric", 8, 2, 11, 2, -2),
    Sketcher.Constraint("Parallel", 1, 4),
    Sketcher.Constraint("Parallel", 2, 5),
    Sketcher.Constraint("Parallel", 5, 6),
    Sketcher.Constraint("Parallel", 4, 8),
    Sketcher.Constraint("Parallel", 6, 9),
    Sketcher.Constraint("Parallel", 8, 11),
    Sketcher.Constraint("Parallel", 9, 12),
    Sketcher.Constraint("Parallel", 11, 14),
    Sketcher.Constraint("Parallel", 12, 15),
    Sketcher.Constraint("Parallel", 14, 17),
    Sketcher.Constraint("Parallel", 15, 18),
    Sketcher.Constraint("Parallel", 17, 20),
    Sketcher.Constraint("Parallel", 18, 21),
    Sketcher.Constraint("Parallel", 20, 23),
    Sketcher.Constraint("Parallel", 21, 24),
    Sketcher.Constraint("Parallel", 23, 26),
    Sketcher.Constraint("Parallel", 24, 27),
    Sketcher.Constraint("Parallel", 26, 29),
    Sketcher.Constraint("Horizontal", 14, 2, 17, 2),
    Sketcher.Constraint("Horizontal", 13, 2, 18, 2),
    Sketcher.Constraint("Horizontal", 17, 2, 20, 2),
    Sketcher.Constraint("Horizontal", 16, 2, 21, 2),
    Sketcher.Constraint("Horizontal", 20, 2, 23, 2),
    Sketcher.Constraint("Horizontal", 26, 2, 29, 2),
    Sketcher.Constraint("Vertical", 0, 2, 2, 2),
    Sketcher.Constraint("Vertical", 3, 2, 5, 2),
    Sketcher.Constraint("Vertical", 5, 2, 6, 2),
    Sketcher.Constraint("Vertical", 1, 2, 8, 2),
    Sketcher.Constraint("Vertical", 7, 2, 9, 2),
    Sketcher.Constraint("Vertical", 13, 2, 15, 2),
    Sketcher.Constraint("Vertical", 16, 2, 24, 2),
    Sketcher.Constraint("Vertical", 15, 2, 25, 2),
    Sketcher.Constraint("Vertical", 14, 2, 26, 2),
    Sketcher.Constraint("Vertical", 25, 2, 27, 2),
    Sketcher.Constraint("Equal", 10, 13),
    Sketcher.Constraint("Equal", 16, 19),
    Sketcher.Constraint("Equal", 11, 12),
    Sketcher.Constraint("DistanceY", -1, 1, 1, 2, Q("3 in")),
    Sketcher.Constraint("DistanceY", -1, 1, 8, 2, Q("1 in")),
    Sketcher.Constraint("Angle", 1, Q("120 deg")),
    Sketcher.Constraint("DistanceY", -1, 1, 0, 2, Q("73.45 mm")),
    Sketcher.Constraint("DistanceX", 12, 2, 18, 2, Q("19.5 mm")),
    Sketcher.Constraint("DistanceX", 0, 2, 0, 1, Q("3.175426 mm")),
    Sketcher.Constraint("DistanceX", -1, 1, 12, 2, Q("62.872879 mm")),
    Sketcher.Constraint("DistanceY", -1, 1, 12, 2, Q("0.036449 mm")),
    Sketcher.Constraint("DistanceY", 24, 2, -1, 1, Q("41.687698 mm")),
])
pocket8 = body.newObject("PartDesign::Pocket", "Pocket007")
pocket8.Profile = sketch11
pocket8.Length = 2.3
pocket8.Reversed = True

# Sketch on YZ plane
sketch12 = body.newObject("Sketcher::SketchObject", "Sketch011")
sketch12.AttachmentSupport = (doc.getObject("YZ_Plane"), [""])
sketch12.MapMode = "FlatFace"
sketch12.AttachmentOffset = App.Placement(Vector(0, 0, 3.45 * 25.4), App.Rotation())
add_polygon(sketch12, [(-56.252402, 5.08), (-96.52, 56.642), (-101.6, 56.642), (-101.6, 5.08)])  # lines 0-3
sketch12.addConstraint([
    Sketcher.Constraint("Horizontal", 1),
    Sketcher.Constraint("Vertical", 2),
    Sketcher.Constraint("Horizontal", 3),
    Sketcher.Constraint("DistanceX", 1, 2, 1, 1, Q("0.2 in")),
    Sketcher.Constraint("DistanceX", 1, 2, -1, 1, Q("4 in")),
    Sketcher.Constraint("DistanceY", 2, 2, 2, 1, Q("2.03 in")),
    Sketcher.Constraint("DistanceY", -1, 1, 2, 2, Q("0.2 in")),
    Sketcher.Constraint("DistanceX", 3, 1, 3, 2, Q("45.347598 mm")),
])
pad4 = body.newObject("PartDesign::Pad", "Pad003")
pad4.Profile = sketch12
pad4.Length = 5
pad4.Reversed = True

doc.recompute()
